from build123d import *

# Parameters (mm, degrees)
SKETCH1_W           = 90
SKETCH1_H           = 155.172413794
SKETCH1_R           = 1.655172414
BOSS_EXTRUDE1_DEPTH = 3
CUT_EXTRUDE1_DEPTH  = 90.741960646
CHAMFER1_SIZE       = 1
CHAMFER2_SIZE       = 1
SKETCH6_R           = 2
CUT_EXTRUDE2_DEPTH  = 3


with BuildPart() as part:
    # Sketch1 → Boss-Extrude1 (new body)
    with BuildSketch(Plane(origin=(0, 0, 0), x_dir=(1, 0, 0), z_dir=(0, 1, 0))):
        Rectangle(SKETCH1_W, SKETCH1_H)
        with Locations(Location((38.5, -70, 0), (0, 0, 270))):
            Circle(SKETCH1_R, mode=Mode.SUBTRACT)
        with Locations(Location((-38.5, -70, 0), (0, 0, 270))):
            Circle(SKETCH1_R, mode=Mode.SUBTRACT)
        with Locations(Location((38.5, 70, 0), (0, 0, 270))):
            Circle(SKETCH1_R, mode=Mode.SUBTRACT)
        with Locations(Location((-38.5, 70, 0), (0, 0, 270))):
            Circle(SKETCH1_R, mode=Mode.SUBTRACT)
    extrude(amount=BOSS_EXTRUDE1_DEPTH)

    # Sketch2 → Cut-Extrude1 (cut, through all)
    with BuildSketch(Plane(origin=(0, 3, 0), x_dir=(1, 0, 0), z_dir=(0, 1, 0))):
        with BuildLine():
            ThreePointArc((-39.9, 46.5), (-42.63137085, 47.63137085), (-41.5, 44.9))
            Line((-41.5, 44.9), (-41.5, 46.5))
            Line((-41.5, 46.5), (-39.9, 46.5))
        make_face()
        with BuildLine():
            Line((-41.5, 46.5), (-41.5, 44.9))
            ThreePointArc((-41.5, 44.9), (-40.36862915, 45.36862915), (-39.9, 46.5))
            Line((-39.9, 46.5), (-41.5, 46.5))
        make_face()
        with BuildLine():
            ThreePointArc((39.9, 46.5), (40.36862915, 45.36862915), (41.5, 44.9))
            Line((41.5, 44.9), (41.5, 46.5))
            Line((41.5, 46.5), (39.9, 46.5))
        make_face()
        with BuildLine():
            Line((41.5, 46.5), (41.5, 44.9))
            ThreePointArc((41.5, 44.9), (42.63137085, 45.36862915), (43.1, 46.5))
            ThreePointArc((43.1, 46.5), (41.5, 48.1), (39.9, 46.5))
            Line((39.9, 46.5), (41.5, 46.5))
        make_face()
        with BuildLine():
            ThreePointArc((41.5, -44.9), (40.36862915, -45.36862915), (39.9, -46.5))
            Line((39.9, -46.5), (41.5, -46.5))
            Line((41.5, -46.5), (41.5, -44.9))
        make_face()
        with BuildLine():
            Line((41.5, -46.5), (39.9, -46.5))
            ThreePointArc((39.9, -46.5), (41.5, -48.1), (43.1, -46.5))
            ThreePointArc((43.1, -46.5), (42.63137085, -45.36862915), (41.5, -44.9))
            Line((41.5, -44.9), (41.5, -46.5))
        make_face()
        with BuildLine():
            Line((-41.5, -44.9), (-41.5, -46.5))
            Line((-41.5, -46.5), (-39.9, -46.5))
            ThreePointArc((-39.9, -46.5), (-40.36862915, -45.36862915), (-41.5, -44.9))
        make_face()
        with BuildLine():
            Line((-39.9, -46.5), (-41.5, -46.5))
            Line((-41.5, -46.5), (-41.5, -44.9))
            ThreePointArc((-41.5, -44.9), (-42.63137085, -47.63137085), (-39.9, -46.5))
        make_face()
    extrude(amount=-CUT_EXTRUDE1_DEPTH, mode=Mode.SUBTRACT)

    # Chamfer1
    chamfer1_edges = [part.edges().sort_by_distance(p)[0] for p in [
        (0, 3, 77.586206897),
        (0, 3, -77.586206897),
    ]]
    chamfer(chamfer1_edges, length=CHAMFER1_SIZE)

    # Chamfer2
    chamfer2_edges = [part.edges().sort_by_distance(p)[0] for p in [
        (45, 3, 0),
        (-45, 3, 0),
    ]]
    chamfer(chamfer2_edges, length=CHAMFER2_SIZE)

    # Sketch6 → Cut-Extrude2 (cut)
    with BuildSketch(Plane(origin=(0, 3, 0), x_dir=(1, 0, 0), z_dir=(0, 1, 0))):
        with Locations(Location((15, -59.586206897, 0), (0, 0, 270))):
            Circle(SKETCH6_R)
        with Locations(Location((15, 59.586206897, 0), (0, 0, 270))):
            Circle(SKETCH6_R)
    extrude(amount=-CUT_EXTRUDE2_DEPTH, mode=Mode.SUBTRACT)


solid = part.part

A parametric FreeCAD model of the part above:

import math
import FreeCAD as App
import Part
import Sketcher

V = App.Vector
Q = App.Units.Quantity


def edges_at(feature, points):
    """Names of the edges that pass closest to the given points."""
    edges = feature.Shape.Edges
    near = lambda p: min(range(len(edges)), key=lambda i: edges[i].distToShape(Part.Vertex(*p))[0])
    return sorted({f"Edge{near(p) + 1}" for p in points})


def add_polygon(sketch, points):
    """Adds a closed chain of lines whose ends are joined by coincident constraints."""
    first, n = sketch.GeometryCount, len(points)
    for a, b in zip(points, points[1:] + points[:1]):
        sketch.addGeometry(Part.LineSegment(App.Vector(*a, 0), App.Vector(*b, 0)), False)
    for i in range(n):
        sketch.addConstraint(Sketcher.Constraint("Coincident", first + i, 2, first + (i + 1) % n, 1))

doc = App.newDocument("Part")
params = doc.addObject("Spreadsheet::Sheet", "Params")
for row, (alias, value) in enumerate([
    ("sketch1_width", "90 mm"),
    ("pad1_length", "3 mm"),
    ("sketch2_radius", "1.6 mm"),
    ("chamfer_size", "1 mm"),
    ("chamfer2_size", "1 mm"),
    ("sketch3_diameter", "4 mm"),
    ("pocket2_length", "3 mm"),
], start=1):
    params.set(f"A{row}", alias)
    params.set(f"B{row}", "=" + value)
    params.setAlias(f"B{row}", alias)

body = doc.addObject("PartDesign::Body", "Body")

sketch1 = body.newObject("Sketcher::SketchObject", "Sketch")
sketch1.AttachmentSupport = (doc.getObject("XZ_Plane"), [""])
sketch1.MapMode = "FlatFace"
add_polygon(sketch1, [(-45, -77.586207), (-45, 77.586207), (45, 77.586207), (45, -77.586207)])
sketch1.addGeometry(Part.Circle(V(-38.5, 70, 0), V(0, 0, 1), 1.655172), False)
sketch1.addGeometry(Part.Circle(V(38.5, 70, 0), V(0, 0, 1), 1.655172), False)
sketch1.addGeometry(Part.Circle(V(-38.5, -70, 0), V(0, 0, 1), 1.655172), False)
sketch1.addGeometry(Part.Circle(V(38.5, -70, 0), V(0, 0, 1), 1.655172), False)
sketch1.addConstraint(Sketcher.Constraint("Vertical", 0))
sketch1.addConstraint(Sketcher.Constraint("Horizontal", 1))
sketch1.addConstraint(Sketcher.Constraint("Vertical", 2))
sketch1.addConstraint(Sketcher.Constraint("Horizontal", 3))
sketch1.addConstraint(Sketcher.Constraint("Equal", 4, 5))
sketch1.addConstraint(Sketcher.Constraint("Equal", 5, 6))
sketch1.addConstraint(Sketcher.Constraint("Equal", 6, 7))
sketch1.addConstraint(Sketcher.Constraint("Symmetric", 5, 3, 6, 3, -1, 1))
sketch1.addConstraint(Sketcher.Constraint("Symmetric", 4, 3, 7, 3, -1, 1))
sketch1.addConstraint(Sketcher.Constraint("Symmetric", 0, 2, 2, 2, -1, 1))
sketch1.addConstraint(Sketcher.Constraint("Symmetric", 4, 3, 5, 3, -2))
sketch1.addConstraint(Sketcher.Constraint("DistanceX", 1, 1, 1, 2, Q("90 mm")))
sketch1.addConstraint(Sketcher.Constraint("DistanceY", -1, 1, 4, 3, Q("70 mm")))
sketch1.addConstraint(Sketcher.Constraint("DistanceX", 4, 3, 5, 3, Q("77 mm")))
sketch1.addConstraint(Sketcher.Constraint("Diameter", 4, Q("3.310345 mm")))
sketch1.addConstraint(Sketcher.Constraint("DistanceY", 0, 1, 0, 2, Q("155.172414 mm")))
sketch1.setExpression("Constraints[15]", "Params.sketch1_width")
pad1 = body.newObject("PartDesign::Pad", "Pad")
pad1.Profile = sketch1
pad1.setExpression("Length", "Params.pad1_length")
pad1.Reversed = True

sketch2 = body.newObject("Sketcher::SketchObject", "Sketch001")
sketch2.AttachmentSupport = (doc.getObject("XZ_Plane"), [""])
sketch2.MapMode = "FlatFace"
sketch2.AttachmentOffset = App.Placement(V(0, 0, -3), App.Rotation())
sketch2.addGeometry(Part.ArcOfCircle(Part.Circle(V(-41.5, -46.5, 0), V(0, 0, 1), 1.6), math.radians(90), math.radians(360)), False)
sketch2.addGeometry(Part.ArcOfCircle(Part.Circle(V(-41.5, -46.5, 0), V(0, 0, 1), 1.6), math.radians(0), math.radians(90)), False)
sketch2.addGeometry(Part.ArcOfCircle(Part.Circle(V(41.5, -46.5, 0), V(0, 0, 1), 1.6), math.radians(90), math.radians(180)), False)
sketch2.addGeometry(Part.ArcOfCircle(Part.Circle(V(41.5, -46.5, 0), V(0, 0, 1), 1.6), math.radians(0), math.radians(90)), False)
sketch2.addGeometry(Part.ArcOfCircle(Part.Circle(V(41.5, -46.5, 0), V(0, 0, 1), 1.6), math.radians(180), math.radians(360)), False)
sketch2.addGeometry(Part.ArcOfCircle(Part.Circle(V(41.5, 46.5, 0), V(0, 0, 1), 1.6), math.radians(180), math.radians(270)), False)
sketch2.addGeometry(Part.ArcOfCircle(Part.Circle(V(41.5, 46.5, 0), V(0, 0, 1), 1.6), math.radians(0), math.radians(180)), False)
sketch2.addGeometry(Part.ArcOfCircle(Part.Circle(V(41.5, 46.5, 0), V(0, 0, 1), 1.6), math.radians(-90), math.radians(0)), False)
sketch2.addGeometry(Part.ArcOfCircle(Part.Circle(V(-41.5, 46.5, 0), V(0, 0, 1), 1.6), math.radians(-90), math.radians(0)), False)
sketch2.addGeometry(Part.ArcOfCircle(Part.Circle(V(-41.5, 46.5, 0), V(0, 0, 1), 1.6), math.radians(0), math.radians(270)), False)
sketch2.addConstraint(Sketcher.Constraint("Tangent", 0, 1, 1, 2))
sketch2.addConstraint(Sketcher.Constraint("Coincident", 1, 1, 0, 2))
sketch2.addConstraint(Sketcher.Constraint("Tangent", 2, 1, 3, 2))
sketch2.addConstraint(Sketcher.Constraint("Tangent", 3, 1, 4, 2))
sketch2.addConstraint(Sketcher.Constraint("Tangent", 4, 1, 2, 2))
sketch2.addConstraint(Sketcher.Constraint("Tangent", 5, 1, 6, 2))
sketch2.addConstraint(Sketcher.Constraint("Tangent", 6, 1, 7, 2))
sketch2.addConstraint(Sketcher.Constraint("Tangent", 7, 1, 5, 2))
sketch2.addConstraint(Sketcher.Constraint("Tangent", 8, 1, 9, 2))
sketch2.addConstraint(Sketcher.Constraint("Coincident", 9, 1, 8, 2))
sketch2.addConstraint(Sketcher.Constraint("Equal", 1, 2))
sketch2.addConstraint(Sketcher.Constraint("Equal", 4, 5))
sketch2.addConstraint(Sketcher.Constraint("Equal", 7, 8))
sketch2.addConstraint(Sketcher.Constraint("Symmetric", 0, 3, 5, 3, -1, 1))
sketch2.addConstraint(Sketcher.Constraint("Symmetric", 2, 3, 8, 3, -1, 1))
sketch2.addConstraint(Sketcher.Constraint("Symmetric", 0, 3, 2, 3, -2))
sketch2.addConstraint(Sketcher.Constraint("Horizontal", 4, 3, 1, 1))
sketch2.addConstraint(Sketcher.Constraint("Horizontal", 1, 1, 3, 1))
sketch2.addConstraint(Sketcher.Constraint("Horizontal", 3, 1, 4, 1))
sketch2.addConstraint(Sketcher.Constraint("Horizontal", 9, 3, 5, 1))
sketch2.addConstraint(Sketcher.Constraint("Horizontal", 5, 1, 6, 1))
sketch2.addConstraint(Sketcher.Constraint("Horizontal", 6, 1, 9, 1))
sketch2.addConstraint(Sketcher.Constraint("Vertical", 9, 3, 0, 1))
sketch2.addConstraint(Sketcher.Constraint("Vertical", 7, 3, 2, 1))
sketch2.addConstraint(Sketcher.Constraint("Vertical", 2, 1, 7, 1))
sketch2.addConstraint(Sketcher.Constraint("Vertical", 0, 1, 8, 1))
sketch2.addConstraint(Sketcher.Constraint("Radius", 0, Q("1.6 mm")))
sketch2.addConstraint(Sketcher.Constraint("DistanceX", 0, 3, 2, 3, Q("83 mm")))
sketch2.addConstraint(Sketcher.Constraint("DistanceY", 2, 3, 5, 3, Q("93 mm")))
sketch2.setExpression("Constraints[26]", "Params.sketch2_radius")
pocket1 = body.newObject("PartDesign::Pocket", "Pocket")
pocket1.Profile = sketch2
pocket1.Type = "ThroughAll"
pocket1.Reversed = True
doc.recompute()

chamfer = body.newObject("PartDesign::Chamfer", "Chamfer")
chamfer.Base = (pocket1, edges_at(pocket1, [(0, 3, 77.586), (0, 3, -77.586)]))
chamfer.setExpression("Size", "Params.chamfer_size")
doc.recompute()

chamfer2 = body.newObject("PartDesign::Chamfer", "Chamfer001")
chamfer2.Base = (chamfer, edges_at(chamfer, [(45, 3, 0), (-45, 3, 0)]))
chamfer2.setExpression("Size", "Params.chamfer2_size")

sketch3 = body.newObject("Sketcher::SketchObject", "Sketch002")
sketch3.AttachmentSupport = (doc.getObject("XZ_Plane"), [""])
sketch3.MapMode = "FlatFace"
sketch3.AttachmentOffset = App.Placement(V(0, 0, -3), App.Rotation())
sketch3.addGeometry(Part.Circle(V(15, 59.586207, 0), V(0, 0, 1), 2), False)
sketch3.addGeometry(Part.Circle(V(15, -59.586207, 0), V(0, 0, 1), 2), False)
sketch3.addConstraint(Sketcher.Constraint("Equal", 0, 1))
sketch3.addConstraint(Sketcher.Constraint("Symmetric", 0, 3, 1, 3, -1))
sketch3.addConstraint(Sketcher.Constraint("Diameter", 0, Q("4 mm")))
sketch3.addConstraint(Sketcher.Constraint("DistanceX", -1, 1, 0, 3, Q("15 mm")))
sketch3.addConstraint(Sketcher.Constraint("DistanceY", -1, 1, 0, 3, Q("59.586207 mm")))
sketch3.setExpression("Constraints[2]", "Params.sketch3_diameter")
pocket2 = body.newObject("PartDesign::Pocket", "Pocket001")
pocket2.Profile = sketch3
pocket2.setExpression("Length", "Params.pocket2_length")
pocket2.Reversed = True

doc.recompute()
